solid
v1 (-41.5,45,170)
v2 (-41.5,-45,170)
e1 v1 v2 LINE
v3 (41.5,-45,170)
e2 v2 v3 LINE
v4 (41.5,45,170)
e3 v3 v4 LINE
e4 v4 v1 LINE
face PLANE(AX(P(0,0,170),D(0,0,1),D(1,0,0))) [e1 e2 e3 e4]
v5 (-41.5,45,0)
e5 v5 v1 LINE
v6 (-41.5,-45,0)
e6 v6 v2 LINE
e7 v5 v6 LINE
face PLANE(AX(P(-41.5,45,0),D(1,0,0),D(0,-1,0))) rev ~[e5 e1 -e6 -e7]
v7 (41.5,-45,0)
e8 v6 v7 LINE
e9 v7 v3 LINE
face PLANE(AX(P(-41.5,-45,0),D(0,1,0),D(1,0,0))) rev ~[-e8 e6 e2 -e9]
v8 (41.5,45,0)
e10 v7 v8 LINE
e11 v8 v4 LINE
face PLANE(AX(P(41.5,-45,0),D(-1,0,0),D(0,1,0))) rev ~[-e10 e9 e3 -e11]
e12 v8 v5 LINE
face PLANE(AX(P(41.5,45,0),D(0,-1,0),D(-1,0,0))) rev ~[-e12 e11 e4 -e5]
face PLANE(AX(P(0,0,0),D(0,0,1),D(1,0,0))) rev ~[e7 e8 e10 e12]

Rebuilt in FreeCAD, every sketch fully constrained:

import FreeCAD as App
import Part
import Sketcher
from FreeCAD import Vector

doc = App.newDocument("Part")
body = doc.addObject("PartDesign::Body", "Body")

sketch1 = body.newObject("Sketcher::SketchObject", "Sketch")
sketch1.AttachmentSupport = (doc.getObject("XY_Plane"), [""])
sketch1.MapMode = "FlatFace"
sketch1.addGeometry([
    Part.LineSegment(Vector(-42, 45, 0), Vector(-42, -45, 0)),
    Part.LineSegment(Vector(-42, -45, 0), Vector(42, -45, 0)),
    Part.LineSegment(Vector(42, -45, 0), Vector(42, 45, 0)),
    Part.LineSegment(Vector(42, 45, 0), Vector(-42, 45, 0)),
], False)
sketch1.addConstraint([
    Sketcher.Constraint("Coincident", 0, 2, 1, 1),
    Sketcher.Constraint("Coincident", 1, 2, 2, 1),
    Sketcher.Constraint("Coincident", 2, 2, 3, 1),
    Sketcher.Constraint("Coincident", 3, 2, 0, 1),
    Sketcher.Constraint("Vertical", 0),
    Sketcher.Constraint("Horizontal", 1),
    Sketcher.Constraint("Vertical", 2),
    Sketcher.Constraint("Horizontal", 3),
    Sketcher.Constraint("Symmetric", 0, 2, 2, 2, -1, 1),
    Sketcher.Constraint("DistanceX", 1, 1, 1, 2, 83.0),
    Sketcher.Constraint("DistanceY", 0, 2, 0, 1, 90.0),
])
pad1 = body.newObject("PartDesign::Pad", "Pad")
pad1.Profile = sketch1
pad1.Length = 170

doc.recompute()
